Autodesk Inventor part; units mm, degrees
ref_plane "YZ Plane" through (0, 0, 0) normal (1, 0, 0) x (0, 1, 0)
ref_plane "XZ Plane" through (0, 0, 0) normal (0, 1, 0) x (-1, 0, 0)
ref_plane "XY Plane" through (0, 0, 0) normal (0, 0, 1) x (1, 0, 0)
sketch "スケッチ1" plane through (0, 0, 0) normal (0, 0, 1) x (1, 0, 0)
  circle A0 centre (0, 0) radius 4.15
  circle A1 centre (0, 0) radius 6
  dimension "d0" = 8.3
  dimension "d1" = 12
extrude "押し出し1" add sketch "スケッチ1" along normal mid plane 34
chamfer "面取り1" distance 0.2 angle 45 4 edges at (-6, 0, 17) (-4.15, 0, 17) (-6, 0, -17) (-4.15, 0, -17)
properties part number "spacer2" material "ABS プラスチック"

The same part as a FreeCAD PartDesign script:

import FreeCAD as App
import Part
import Sketcher
from FreeCAD import Vector
Q = App.Units.Quantity


def edges_at(feature, points):
    """Names of the edges that pass closest to the given points."""
    edges = feature.Shape.Edges
    near = lambda p: min(range(len(edges)), key=lambda i: edges[i].distToShape(Part.Vertex(*p))[0])
    return sorted({f"Edge{near(p) + 1}" for p in points})

doc = App.newDocument("Part")
params = doc.addObject("Spreadsheet::Sheet", "Params")
for row, (alias, value) in enumerate([
    ("sketch1_diameter", "12 mm"),
    ("sketch1_diameter2", "8.3 mm"),
    ("pad1_length", "34 mm"),
    ("chamfer_size", "0.2 mm"),
], start=1):
    params.set(f"A{row}", alias)
    params.set(f"B{row}", "=" + value)
    params.setAlias(f"B{row}", alias)

body = doc.addObject("PartDesign::Body", "Body")

# Sketch on XY plane
sketch1 = body.newObject("Sketcher::SketchObject", "Sketch")
sketch1.AttachmentSupport = (doc.getObject("XY_Plane"), [""])
sketch1.MapMode = "FlatFace"
sketch1.addGeometry([
    Part.Circle(Vector(0, 0, 0), Vector(0, 0, 1), 6),
    Part.Circle(Vector(0, 0, 0), Vector(0, 0, 1), 4.2),
], False)
sketch1.addConstraint([
    Sketcher.Constraint("Coincident", 0, 3, -1, 1),
    Sketcher.Constraint("Coincident", 1, 3, -1, 1),
    Sketcher.Constraint("Diameter", 0, Q("12 mm")),
    Sketcher.Constraint("Diameter", 1, Q("8.3 mm")),
])
sketch1.setExpression("Constraints[2]", "Params.sketch1_diameter")
sketch1.setExpression("Constraints[3]", "Params.sketch1_diameter2")
pad1 = body.newObject("PartDesign::Pad", "Pad")
pad1.Profile = sketch1
pad1.setExpression("Length", "Params.pad1_length")
pad1.Midplane = True
doc.recompute()

chamfer = body.newObject("PartDesign::Chamfer", "Chamfer")
chamfer.Base = (pad1, edges_at(pad1, [
    (-6, 0, 17),
    (-4.15, 0, 17),
    (-6, 0, -17),
    (-4.15, 0, -17),
]))
chamfer.setExpression("Size", "Params.chamfer_size")

doc.recompute()
